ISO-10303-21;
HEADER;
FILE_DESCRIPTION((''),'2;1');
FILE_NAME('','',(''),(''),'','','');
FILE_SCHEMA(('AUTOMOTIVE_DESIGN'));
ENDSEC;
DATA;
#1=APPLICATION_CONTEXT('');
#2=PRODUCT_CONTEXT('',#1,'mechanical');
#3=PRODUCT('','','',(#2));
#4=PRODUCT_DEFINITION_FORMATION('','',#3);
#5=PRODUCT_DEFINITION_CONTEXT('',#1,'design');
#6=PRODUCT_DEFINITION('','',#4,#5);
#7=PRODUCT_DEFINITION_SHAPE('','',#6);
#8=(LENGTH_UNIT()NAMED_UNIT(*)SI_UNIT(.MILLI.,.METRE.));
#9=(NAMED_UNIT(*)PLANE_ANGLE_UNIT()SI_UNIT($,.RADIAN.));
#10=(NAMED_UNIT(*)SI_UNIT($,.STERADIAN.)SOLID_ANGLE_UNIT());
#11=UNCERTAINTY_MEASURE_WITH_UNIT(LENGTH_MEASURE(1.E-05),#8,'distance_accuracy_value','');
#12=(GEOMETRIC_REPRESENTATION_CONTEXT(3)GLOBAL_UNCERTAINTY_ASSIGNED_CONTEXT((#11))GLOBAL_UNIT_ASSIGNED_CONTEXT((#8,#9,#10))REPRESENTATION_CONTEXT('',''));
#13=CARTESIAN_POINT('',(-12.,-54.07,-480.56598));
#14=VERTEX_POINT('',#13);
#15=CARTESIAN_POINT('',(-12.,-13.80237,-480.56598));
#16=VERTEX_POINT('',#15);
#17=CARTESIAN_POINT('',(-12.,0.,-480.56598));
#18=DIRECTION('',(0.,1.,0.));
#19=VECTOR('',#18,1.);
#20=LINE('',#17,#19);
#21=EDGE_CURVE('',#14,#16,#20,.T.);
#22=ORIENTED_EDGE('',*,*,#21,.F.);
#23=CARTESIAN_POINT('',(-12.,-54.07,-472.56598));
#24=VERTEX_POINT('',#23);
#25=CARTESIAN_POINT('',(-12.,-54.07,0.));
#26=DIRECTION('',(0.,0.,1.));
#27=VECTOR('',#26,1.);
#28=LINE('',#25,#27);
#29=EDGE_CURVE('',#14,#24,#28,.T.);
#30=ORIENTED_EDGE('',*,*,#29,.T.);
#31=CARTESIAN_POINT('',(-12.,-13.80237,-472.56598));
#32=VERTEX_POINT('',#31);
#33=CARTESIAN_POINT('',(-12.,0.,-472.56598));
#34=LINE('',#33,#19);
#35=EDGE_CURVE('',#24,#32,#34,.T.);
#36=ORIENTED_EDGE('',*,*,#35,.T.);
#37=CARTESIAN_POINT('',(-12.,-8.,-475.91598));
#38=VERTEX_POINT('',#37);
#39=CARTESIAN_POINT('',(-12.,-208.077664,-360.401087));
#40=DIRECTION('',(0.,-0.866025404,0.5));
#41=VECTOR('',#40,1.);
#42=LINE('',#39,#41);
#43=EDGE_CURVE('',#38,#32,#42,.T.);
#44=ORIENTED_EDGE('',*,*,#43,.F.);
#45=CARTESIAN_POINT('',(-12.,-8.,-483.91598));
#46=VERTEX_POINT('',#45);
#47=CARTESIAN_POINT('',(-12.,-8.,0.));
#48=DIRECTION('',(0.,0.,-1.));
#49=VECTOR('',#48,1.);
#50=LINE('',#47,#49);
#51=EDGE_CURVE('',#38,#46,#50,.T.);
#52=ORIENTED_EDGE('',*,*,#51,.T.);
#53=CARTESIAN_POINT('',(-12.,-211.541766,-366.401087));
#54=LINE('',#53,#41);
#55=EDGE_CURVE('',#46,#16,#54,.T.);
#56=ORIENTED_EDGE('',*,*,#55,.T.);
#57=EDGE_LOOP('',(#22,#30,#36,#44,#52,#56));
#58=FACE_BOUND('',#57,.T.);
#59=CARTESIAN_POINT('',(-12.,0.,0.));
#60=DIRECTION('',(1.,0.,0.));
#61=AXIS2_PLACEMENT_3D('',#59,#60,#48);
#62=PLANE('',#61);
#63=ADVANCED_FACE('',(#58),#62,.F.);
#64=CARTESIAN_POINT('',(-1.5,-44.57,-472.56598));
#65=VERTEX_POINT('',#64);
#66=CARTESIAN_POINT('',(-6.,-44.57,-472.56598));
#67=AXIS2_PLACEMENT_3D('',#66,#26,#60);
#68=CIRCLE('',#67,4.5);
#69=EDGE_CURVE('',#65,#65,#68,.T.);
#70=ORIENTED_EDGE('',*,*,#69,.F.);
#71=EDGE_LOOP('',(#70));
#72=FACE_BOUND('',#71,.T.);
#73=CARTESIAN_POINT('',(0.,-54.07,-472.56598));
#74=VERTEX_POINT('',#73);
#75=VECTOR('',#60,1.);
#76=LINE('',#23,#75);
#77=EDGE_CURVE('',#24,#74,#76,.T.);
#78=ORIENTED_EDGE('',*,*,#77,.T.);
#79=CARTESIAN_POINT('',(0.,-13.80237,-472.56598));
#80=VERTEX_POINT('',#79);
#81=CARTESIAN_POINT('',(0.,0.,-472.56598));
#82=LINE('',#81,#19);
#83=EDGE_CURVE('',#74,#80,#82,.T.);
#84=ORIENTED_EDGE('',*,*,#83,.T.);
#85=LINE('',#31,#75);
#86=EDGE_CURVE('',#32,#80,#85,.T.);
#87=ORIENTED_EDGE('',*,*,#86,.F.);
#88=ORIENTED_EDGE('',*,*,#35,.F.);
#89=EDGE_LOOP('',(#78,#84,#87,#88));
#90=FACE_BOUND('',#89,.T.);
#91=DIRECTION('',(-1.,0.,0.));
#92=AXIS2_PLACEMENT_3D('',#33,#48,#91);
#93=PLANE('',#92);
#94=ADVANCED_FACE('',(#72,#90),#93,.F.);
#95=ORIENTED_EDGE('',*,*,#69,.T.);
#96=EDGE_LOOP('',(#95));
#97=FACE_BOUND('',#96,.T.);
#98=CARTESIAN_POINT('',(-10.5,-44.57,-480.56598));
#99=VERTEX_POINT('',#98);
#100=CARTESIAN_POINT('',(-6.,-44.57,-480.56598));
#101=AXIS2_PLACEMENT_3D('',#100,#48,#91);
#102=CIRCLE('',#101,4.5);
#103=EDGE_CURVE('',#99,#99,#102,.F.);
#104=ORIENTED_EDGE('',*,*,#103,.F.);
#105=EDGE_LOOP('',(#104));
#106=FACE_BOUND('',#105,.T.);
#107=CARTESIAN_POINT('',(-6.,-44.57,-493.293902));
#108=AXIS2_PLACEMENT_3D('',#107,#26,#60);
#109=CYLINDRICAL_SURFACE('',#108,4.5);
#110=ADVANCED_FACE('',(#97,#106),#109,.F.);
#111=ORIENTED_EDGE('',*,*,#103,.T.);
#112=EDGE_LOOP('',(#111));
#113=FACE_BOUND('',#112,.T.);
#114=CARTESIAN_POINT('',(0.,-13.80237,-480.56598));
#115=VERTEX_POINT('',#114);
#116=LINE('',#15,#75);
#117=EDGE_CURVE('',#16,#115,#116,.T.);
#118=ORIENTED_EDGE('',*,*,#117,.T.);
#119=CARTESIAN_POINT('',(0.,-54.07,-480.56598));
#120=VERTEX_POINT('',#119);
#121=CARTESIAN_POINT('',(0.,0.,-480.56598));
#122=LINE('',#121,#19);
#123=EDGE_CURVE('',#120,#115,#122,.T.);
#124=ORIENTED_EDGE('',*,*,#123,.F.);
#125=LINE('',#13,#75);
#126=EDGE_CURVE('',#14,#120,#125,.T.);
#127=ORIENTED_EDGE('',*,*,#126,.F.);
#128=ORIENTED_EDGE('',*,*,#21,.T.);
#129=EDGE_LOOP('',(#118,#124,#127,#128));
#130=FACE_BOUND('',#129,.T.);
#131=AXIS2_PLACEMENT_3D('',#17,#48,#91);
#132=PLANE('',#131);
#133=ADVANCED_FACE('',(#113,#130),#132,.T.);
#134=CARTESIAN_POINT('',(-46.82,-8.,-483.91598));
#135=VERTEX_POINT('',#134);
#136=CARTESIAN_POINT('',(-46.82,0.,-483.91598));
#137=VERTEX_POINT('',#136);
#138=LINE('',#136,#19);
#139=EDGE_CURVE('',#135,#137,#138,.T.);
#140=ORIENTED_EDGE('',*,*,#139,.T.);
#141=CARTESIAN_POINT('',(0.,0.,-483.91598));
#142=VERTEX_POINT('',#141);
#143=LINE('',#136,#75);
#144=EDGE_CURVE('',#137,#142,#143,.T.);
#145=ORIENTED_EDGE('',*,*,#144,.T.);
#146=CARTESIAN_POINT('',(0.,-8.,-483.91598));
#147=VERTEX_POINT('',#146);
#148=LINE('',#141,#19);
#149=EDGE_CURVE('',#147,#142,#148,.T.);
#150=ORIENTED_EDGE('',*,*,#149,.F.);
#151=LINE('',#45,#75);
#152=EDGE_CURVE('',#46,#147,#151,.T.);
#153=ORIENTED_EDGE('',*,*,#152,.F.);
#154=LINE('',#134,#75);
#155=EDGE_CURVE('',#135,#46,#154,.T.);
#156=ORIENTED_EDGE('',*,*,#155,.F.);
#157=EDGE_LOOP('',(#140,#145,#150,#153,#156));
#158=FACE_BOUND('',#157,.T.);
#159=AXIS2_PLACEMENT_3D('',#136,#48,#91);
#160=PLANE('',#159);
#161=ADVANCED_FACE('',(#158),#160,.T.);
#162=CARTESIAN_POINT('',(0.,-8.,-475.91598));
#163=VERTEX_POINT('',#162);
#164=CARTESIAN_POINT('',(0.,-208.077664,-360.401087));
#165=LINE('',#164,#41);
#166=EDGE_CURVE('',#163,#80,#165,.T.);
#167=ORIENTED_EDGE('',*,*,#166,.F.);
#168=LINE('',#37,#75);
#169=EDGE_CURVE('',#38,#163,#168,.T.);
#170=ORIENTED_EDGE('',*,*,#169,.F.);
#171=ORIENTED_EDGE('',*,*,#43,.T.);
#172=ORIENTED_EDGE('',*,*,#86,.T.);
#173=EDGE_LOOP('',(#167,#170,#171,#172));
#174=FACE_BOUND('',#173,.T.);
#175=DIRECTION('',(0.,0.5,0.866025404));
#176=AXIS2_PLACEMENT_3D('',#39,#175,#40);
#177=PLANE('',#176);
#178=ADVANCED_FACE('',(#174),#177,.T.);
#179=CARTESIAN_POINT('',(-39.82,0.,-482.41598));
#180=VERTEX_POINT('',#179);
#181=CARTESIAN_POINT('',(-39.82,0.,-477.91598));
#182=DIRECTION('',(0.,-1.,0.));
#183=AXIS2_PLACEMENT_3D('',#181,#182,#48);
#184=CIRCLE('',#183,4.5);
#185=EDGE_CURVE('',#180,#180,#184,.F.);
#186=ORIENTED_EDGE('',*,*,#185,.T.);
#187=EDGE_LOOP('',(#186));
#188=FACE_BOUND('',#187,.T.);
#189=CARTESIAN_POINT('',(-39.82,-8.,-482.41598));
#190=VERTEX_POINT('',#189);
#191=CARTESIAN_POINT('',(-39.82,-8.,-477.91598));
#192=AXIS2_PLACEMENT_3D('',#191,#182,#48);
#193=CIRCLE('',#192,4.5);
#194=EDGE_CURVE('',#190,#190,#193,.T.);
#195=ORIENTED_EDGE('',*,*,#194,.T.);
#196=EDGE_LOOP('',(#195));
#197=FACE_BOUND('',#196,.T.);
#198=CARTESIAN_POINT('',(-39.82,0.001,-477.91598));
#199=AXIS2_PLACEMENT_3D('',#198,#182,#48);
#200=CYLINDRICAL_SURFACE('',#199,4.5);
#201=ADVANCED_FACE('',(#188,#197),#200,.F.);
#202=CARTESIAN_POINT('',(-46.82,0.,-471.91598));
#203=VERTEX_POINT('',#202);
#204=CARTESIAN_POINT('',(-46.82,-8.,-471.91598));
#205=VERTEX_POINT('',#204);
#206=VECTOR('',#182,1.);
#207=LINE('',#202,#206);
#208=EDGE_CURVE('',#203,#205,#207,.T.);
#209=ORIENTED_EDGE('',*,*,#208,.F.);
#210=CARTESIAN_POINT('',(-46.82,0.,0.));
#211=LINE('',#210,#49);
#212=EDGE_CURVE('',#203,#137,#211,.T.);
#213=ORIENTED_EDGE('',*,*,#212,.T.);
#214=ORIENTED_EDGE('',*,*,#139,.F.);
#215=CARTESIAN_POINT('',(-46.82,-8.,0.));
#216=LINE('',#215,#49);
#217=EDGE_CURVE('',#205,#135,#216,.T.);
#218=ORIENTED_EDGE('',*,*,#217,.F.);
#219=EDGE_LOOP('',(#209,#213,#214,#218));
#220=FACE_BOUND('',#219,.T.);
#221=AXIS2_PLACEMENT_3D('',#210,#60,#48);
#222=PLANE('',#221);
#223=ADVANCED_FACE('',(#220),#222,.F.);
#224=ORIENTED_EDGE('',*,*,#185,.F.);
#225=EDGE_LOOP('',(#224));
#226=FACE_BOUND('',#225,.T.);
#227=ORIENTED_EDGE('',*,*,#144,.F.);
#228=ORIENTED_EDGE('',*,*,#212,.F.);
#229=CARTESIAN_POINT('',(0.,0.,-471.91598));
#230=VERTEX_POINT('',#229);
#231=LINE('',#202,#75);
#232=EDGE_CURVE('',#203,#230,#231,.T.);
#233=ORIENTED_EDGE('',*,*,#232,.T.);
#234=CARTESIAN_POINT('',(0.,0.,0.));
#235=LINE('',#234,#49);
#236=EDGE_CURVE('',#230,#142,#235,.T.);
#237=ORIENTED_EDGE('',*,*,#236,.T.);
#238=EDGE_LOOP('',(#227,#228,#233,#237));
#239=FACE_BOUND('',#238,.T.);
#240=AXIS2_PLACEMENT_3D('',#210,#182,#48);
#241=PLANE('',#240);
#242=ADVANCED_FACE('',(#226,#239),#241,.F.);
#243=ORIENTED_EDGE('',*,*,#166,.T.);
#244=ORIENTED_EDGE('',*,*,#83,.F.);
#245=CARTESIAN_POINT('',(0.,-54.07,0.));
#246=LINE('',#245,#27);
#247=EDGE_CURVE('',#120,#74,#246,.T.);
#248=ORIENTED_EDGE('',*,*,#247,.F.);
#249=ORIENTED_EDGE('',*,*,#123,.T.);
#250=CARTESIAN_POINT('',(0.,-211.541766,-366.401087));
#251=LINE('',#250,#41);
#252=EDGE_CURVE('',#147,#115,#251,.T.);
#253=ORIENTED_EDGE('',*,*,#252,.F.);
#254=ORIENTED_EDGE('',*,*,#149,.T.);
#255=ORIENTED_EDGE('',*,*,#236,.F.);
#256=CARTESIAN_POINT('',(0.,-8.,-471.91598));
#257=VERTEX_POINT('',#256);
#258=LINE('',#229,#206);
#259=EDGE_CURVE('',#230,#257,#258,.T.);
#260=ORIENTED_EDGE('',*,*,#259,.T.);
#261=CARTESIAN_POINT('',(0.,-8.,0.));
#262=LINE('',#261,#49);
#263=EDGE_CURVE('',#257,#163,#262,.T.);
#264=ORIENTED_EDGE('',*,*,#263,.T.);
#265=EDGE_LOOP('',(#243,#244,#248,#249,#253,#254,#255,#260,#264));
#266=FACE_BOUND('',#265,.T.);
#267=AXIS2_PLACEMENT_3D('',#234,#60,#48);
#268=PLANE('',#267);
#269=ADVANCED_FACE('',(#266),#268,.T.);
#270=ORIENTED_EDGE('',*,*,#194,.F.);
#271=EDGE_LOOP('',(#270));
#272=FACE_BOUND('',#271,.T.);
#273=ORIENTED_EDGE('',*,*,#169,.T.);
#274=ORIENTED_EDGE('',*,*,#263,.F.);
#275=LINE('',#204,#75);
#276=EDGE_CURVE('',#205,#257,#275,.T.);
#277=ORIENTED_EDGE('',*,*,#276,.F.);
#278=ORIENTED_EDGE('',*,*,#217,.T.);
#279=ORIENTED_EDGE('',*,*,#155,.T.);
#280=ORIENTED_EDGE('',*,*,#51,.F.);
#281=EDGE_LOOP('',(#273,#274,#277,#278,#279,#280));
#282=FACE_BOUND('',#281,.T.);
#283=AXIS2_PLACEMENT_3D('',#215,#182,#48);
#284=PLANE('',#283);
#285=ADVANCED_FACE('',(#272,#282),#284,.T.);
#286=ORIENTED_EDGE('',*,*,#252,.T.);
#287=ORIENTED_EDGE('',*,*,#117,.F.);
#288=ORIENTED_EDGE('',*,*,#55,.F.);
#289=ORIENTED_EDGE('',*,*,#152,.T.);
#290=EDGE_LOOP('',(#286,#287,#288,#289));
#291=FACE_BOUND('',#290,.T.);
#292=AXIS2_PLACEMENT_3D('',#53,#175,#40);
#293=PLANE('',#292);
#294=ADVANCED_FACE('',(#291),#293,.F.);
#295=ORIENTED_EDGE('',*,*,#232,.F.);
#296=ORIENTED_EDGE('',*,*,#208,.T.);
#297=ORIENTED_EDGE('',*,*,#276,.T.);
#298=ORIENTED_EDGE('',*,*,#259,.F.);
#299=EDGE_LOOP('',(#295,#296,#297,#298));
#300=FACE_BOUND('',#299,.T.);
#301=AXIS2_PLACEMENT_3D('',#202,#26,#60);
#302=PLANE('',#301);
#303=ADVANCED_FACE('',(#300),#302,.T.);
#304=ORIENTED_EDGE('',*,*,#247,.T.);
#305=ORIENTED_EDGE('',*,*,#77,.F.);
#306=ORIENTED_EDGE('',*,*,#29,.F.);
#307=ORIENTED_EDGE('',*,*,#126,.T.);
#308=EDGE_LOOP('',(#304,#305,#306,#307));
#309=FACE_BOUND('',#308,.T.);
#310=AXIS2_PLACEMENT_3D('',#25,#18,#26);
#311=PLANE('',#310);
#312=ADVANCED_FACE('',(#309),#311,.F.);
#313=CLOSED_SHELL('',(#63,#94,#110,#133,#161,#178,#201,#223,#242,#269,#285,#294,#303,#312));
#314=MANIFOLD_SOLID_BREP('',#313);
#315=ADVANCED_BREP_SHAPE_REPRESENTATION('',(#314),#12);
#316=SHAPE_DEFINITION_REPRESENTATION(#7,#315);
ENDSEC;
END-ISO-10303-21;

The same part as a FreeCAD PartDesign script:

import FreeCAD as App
import Part
import Sketcher

V = App.Vector
Q = App.Units.Quantity


def add_polygon(sketch, points):
    """Adds a closed chain of lines whose ends are joined by coincident constraints."""
    first, n = sketch.GeometryCount, len(points)
    for a, b in zip(points, points[1:] + points[:1]):
        sketch.addGeometry(Part.LineSegment(App.Vector(*a, 0), App.Vector(*b, 0)), False)
    for i in range(n):
        sketch.addConstraint(Sketcher.Constraint("Coincident", first + i, 2, first + (i + 1) % n, 1))

doc = App.newDocument("Part")
body = doc.addObject("PartDesign::Body", "Body")

# Sketch on YZ plane
sketch1 = body.newObject("Sketcher::SketchObject", "Sketch")
sketch1.AttachmentSupport = (doc.getObject("YZ_Plane"), [""])
sketch1.MapMode = "FlatFace"
add_polygon(sketch1, [(-8, -483.91598), (-8, -475.91598), (-13.80237, -472.56598), (-54.07, -472.56598), (-54.07, -480.56598), (-13.80237, -480.56598)])  # lines 0-5
sketch1.addConstraint(Sketcher.Constraint("Vertical", 0))
sketch1.addConstraint(Sketcher.Constraint("Horizontal", 2))
sketch1.addConstraint(Sketcher.Constraint("Vertical", 3))
sketch1.addConstraint(Sketcher.Constraint("Horizontal", 4))
sketch1.addConstraint(Sketcher.Constraint("Parallel", 1, 5))
sketch1.addConstraint(Sketcher.Constraint("Vertical", 1, 2, 4, 2))
sketch1.addConstraint(Sketcher.Constraint("DistanceY", 0, 1, 0, 2, 8.0))
sketch1.addConstraint(Sketcher.Constraint("Angle", 1, Q("150 deg")))
sketch1.addConstraint(Sketcher.Constraint("DistanceX", 0, 2, -1, 1, 8.0))
sketch1.addConstraint(Sketcher.Constraint("Distance", 1, 6.7))
sketch1.addConstraint(Sketcher.Constraint("DistanceX", 2, 2, -1, 1, 54.07))
sketch1.addConstraint(Sketcher.Constraint("DistanceY", 0, 2, -1, 1, 475.91598))
pad1 = body.newObject("PartDesign::Pad", "Pad")
pad1.Profile = sketch1
pad1.Length = 12
pad1.Reversed = True

# Sketch on YZ plane
sketch2 = body.newObject("Sketcher::SketchObject", "Sketch001")
sketch2.AttachmentSupport = (doc.getObject("YZ_Plane"), [""])
sketch2.MapMode = "FlatFace"
add_polygon(sketch2, [(-8, -471.91598), (-8, -483.91598), (0, -483.91598), (0, -471.91598)])  # lines 0-3
sketch2.addConstraint(Sketcher.Constraint("Vertical", 0))
sketch2.addConstraint(Sketcher.Constraint("Horizontal", 1))
sketch2.addConstraint(Sketcher.Constraint("Vertical", 2))
sketch2.addConstraint(Sketcher.Constraint("Horizontal", 3))
sketch2.addConstraint(Sketcher.Constraint("PointOnObject", 1, 2, -2))
sketch2.addConstraint(Sketcher.Constraint("DistanceX", 1, 1, 1, 2, 8.0))
sketch2.addConstraint(Sketcher.Constraint("DistanceY", 0, 2, 0, 1, 12.0))
sketch2.addConstraint(Sketcher.Constraint("DistanceY", 0, 2, -1, 1, 483.91598))
pad2 = body.newObject("PartDesign::Pad", "Pad001")
pad2.Profile = sketch2
pad2.Length = 46.82
pad2.Reversed = True

# Sketch on XZ plane
sketch3 = body.newObject("Sketcher::SketchObject", "Sketch002")
sketch3.AttachmentSupport = (doc.getObject("XZ_Plane"), [""])
sketch3.MapMode = "FlatFace"
sketch3.AttachmentOffset = App.Placement(V(0, 0, 8), App.Rotation())
sketch3.addGeometry(Part.Circle(V(-39.82, -477.91598, 0), V(0, 0, 1), 4.5), False)
sketch3.addConstraint(Sketcher.Constraint("Diameter", 0, 9.0))
sketch3.addConstraint(Sketcher.Constraint("DistanceX", 0, 3, -1, 1, 39.82))
sketch3.addConstraint(Sketcher.Constraint("DistanceY", 0, 3, -1, 1, 477.91598))
pocket1 = body.newObject("PartDesign::Pocket", "Pocket")
pocket1.Profile = sketch3
pocket1.Length = 8

# Sketch on XY plane
sketch4 = body.newObject("Sketcher::SketchObject", "Sketch003")
sketch4.AttachmentSupport = (doc.getObject("XY_Plane"), [""])
sketch4.MapMode = "FlatFace"
sketch4.AttachmentOffset = App.Placement(V(0, 0, -472.56598), App.Rotation())
sketch4.addGeometry(Part.Circle(V(-6, -44.57, 0), V(0, 0, 1), 4.5), False)
sketch4.addConstraint(Sketcher.Constraint("Diameter", 0, 9.0))
sketch4.addConstraint(Sketcher.Constraint("DistanceX", 0, 3, -1, 1, 6.0))
sketch4.addConstraint(Sketcher.Constraint("DistanceY", 0, 3, -1, 1, 44.57))
pocket2 = body.newObject("PartDesign::Pocket", "Pocket001")
pocket2.Profile = sketch4
pocket2.Length = 8

doc.recompute()
